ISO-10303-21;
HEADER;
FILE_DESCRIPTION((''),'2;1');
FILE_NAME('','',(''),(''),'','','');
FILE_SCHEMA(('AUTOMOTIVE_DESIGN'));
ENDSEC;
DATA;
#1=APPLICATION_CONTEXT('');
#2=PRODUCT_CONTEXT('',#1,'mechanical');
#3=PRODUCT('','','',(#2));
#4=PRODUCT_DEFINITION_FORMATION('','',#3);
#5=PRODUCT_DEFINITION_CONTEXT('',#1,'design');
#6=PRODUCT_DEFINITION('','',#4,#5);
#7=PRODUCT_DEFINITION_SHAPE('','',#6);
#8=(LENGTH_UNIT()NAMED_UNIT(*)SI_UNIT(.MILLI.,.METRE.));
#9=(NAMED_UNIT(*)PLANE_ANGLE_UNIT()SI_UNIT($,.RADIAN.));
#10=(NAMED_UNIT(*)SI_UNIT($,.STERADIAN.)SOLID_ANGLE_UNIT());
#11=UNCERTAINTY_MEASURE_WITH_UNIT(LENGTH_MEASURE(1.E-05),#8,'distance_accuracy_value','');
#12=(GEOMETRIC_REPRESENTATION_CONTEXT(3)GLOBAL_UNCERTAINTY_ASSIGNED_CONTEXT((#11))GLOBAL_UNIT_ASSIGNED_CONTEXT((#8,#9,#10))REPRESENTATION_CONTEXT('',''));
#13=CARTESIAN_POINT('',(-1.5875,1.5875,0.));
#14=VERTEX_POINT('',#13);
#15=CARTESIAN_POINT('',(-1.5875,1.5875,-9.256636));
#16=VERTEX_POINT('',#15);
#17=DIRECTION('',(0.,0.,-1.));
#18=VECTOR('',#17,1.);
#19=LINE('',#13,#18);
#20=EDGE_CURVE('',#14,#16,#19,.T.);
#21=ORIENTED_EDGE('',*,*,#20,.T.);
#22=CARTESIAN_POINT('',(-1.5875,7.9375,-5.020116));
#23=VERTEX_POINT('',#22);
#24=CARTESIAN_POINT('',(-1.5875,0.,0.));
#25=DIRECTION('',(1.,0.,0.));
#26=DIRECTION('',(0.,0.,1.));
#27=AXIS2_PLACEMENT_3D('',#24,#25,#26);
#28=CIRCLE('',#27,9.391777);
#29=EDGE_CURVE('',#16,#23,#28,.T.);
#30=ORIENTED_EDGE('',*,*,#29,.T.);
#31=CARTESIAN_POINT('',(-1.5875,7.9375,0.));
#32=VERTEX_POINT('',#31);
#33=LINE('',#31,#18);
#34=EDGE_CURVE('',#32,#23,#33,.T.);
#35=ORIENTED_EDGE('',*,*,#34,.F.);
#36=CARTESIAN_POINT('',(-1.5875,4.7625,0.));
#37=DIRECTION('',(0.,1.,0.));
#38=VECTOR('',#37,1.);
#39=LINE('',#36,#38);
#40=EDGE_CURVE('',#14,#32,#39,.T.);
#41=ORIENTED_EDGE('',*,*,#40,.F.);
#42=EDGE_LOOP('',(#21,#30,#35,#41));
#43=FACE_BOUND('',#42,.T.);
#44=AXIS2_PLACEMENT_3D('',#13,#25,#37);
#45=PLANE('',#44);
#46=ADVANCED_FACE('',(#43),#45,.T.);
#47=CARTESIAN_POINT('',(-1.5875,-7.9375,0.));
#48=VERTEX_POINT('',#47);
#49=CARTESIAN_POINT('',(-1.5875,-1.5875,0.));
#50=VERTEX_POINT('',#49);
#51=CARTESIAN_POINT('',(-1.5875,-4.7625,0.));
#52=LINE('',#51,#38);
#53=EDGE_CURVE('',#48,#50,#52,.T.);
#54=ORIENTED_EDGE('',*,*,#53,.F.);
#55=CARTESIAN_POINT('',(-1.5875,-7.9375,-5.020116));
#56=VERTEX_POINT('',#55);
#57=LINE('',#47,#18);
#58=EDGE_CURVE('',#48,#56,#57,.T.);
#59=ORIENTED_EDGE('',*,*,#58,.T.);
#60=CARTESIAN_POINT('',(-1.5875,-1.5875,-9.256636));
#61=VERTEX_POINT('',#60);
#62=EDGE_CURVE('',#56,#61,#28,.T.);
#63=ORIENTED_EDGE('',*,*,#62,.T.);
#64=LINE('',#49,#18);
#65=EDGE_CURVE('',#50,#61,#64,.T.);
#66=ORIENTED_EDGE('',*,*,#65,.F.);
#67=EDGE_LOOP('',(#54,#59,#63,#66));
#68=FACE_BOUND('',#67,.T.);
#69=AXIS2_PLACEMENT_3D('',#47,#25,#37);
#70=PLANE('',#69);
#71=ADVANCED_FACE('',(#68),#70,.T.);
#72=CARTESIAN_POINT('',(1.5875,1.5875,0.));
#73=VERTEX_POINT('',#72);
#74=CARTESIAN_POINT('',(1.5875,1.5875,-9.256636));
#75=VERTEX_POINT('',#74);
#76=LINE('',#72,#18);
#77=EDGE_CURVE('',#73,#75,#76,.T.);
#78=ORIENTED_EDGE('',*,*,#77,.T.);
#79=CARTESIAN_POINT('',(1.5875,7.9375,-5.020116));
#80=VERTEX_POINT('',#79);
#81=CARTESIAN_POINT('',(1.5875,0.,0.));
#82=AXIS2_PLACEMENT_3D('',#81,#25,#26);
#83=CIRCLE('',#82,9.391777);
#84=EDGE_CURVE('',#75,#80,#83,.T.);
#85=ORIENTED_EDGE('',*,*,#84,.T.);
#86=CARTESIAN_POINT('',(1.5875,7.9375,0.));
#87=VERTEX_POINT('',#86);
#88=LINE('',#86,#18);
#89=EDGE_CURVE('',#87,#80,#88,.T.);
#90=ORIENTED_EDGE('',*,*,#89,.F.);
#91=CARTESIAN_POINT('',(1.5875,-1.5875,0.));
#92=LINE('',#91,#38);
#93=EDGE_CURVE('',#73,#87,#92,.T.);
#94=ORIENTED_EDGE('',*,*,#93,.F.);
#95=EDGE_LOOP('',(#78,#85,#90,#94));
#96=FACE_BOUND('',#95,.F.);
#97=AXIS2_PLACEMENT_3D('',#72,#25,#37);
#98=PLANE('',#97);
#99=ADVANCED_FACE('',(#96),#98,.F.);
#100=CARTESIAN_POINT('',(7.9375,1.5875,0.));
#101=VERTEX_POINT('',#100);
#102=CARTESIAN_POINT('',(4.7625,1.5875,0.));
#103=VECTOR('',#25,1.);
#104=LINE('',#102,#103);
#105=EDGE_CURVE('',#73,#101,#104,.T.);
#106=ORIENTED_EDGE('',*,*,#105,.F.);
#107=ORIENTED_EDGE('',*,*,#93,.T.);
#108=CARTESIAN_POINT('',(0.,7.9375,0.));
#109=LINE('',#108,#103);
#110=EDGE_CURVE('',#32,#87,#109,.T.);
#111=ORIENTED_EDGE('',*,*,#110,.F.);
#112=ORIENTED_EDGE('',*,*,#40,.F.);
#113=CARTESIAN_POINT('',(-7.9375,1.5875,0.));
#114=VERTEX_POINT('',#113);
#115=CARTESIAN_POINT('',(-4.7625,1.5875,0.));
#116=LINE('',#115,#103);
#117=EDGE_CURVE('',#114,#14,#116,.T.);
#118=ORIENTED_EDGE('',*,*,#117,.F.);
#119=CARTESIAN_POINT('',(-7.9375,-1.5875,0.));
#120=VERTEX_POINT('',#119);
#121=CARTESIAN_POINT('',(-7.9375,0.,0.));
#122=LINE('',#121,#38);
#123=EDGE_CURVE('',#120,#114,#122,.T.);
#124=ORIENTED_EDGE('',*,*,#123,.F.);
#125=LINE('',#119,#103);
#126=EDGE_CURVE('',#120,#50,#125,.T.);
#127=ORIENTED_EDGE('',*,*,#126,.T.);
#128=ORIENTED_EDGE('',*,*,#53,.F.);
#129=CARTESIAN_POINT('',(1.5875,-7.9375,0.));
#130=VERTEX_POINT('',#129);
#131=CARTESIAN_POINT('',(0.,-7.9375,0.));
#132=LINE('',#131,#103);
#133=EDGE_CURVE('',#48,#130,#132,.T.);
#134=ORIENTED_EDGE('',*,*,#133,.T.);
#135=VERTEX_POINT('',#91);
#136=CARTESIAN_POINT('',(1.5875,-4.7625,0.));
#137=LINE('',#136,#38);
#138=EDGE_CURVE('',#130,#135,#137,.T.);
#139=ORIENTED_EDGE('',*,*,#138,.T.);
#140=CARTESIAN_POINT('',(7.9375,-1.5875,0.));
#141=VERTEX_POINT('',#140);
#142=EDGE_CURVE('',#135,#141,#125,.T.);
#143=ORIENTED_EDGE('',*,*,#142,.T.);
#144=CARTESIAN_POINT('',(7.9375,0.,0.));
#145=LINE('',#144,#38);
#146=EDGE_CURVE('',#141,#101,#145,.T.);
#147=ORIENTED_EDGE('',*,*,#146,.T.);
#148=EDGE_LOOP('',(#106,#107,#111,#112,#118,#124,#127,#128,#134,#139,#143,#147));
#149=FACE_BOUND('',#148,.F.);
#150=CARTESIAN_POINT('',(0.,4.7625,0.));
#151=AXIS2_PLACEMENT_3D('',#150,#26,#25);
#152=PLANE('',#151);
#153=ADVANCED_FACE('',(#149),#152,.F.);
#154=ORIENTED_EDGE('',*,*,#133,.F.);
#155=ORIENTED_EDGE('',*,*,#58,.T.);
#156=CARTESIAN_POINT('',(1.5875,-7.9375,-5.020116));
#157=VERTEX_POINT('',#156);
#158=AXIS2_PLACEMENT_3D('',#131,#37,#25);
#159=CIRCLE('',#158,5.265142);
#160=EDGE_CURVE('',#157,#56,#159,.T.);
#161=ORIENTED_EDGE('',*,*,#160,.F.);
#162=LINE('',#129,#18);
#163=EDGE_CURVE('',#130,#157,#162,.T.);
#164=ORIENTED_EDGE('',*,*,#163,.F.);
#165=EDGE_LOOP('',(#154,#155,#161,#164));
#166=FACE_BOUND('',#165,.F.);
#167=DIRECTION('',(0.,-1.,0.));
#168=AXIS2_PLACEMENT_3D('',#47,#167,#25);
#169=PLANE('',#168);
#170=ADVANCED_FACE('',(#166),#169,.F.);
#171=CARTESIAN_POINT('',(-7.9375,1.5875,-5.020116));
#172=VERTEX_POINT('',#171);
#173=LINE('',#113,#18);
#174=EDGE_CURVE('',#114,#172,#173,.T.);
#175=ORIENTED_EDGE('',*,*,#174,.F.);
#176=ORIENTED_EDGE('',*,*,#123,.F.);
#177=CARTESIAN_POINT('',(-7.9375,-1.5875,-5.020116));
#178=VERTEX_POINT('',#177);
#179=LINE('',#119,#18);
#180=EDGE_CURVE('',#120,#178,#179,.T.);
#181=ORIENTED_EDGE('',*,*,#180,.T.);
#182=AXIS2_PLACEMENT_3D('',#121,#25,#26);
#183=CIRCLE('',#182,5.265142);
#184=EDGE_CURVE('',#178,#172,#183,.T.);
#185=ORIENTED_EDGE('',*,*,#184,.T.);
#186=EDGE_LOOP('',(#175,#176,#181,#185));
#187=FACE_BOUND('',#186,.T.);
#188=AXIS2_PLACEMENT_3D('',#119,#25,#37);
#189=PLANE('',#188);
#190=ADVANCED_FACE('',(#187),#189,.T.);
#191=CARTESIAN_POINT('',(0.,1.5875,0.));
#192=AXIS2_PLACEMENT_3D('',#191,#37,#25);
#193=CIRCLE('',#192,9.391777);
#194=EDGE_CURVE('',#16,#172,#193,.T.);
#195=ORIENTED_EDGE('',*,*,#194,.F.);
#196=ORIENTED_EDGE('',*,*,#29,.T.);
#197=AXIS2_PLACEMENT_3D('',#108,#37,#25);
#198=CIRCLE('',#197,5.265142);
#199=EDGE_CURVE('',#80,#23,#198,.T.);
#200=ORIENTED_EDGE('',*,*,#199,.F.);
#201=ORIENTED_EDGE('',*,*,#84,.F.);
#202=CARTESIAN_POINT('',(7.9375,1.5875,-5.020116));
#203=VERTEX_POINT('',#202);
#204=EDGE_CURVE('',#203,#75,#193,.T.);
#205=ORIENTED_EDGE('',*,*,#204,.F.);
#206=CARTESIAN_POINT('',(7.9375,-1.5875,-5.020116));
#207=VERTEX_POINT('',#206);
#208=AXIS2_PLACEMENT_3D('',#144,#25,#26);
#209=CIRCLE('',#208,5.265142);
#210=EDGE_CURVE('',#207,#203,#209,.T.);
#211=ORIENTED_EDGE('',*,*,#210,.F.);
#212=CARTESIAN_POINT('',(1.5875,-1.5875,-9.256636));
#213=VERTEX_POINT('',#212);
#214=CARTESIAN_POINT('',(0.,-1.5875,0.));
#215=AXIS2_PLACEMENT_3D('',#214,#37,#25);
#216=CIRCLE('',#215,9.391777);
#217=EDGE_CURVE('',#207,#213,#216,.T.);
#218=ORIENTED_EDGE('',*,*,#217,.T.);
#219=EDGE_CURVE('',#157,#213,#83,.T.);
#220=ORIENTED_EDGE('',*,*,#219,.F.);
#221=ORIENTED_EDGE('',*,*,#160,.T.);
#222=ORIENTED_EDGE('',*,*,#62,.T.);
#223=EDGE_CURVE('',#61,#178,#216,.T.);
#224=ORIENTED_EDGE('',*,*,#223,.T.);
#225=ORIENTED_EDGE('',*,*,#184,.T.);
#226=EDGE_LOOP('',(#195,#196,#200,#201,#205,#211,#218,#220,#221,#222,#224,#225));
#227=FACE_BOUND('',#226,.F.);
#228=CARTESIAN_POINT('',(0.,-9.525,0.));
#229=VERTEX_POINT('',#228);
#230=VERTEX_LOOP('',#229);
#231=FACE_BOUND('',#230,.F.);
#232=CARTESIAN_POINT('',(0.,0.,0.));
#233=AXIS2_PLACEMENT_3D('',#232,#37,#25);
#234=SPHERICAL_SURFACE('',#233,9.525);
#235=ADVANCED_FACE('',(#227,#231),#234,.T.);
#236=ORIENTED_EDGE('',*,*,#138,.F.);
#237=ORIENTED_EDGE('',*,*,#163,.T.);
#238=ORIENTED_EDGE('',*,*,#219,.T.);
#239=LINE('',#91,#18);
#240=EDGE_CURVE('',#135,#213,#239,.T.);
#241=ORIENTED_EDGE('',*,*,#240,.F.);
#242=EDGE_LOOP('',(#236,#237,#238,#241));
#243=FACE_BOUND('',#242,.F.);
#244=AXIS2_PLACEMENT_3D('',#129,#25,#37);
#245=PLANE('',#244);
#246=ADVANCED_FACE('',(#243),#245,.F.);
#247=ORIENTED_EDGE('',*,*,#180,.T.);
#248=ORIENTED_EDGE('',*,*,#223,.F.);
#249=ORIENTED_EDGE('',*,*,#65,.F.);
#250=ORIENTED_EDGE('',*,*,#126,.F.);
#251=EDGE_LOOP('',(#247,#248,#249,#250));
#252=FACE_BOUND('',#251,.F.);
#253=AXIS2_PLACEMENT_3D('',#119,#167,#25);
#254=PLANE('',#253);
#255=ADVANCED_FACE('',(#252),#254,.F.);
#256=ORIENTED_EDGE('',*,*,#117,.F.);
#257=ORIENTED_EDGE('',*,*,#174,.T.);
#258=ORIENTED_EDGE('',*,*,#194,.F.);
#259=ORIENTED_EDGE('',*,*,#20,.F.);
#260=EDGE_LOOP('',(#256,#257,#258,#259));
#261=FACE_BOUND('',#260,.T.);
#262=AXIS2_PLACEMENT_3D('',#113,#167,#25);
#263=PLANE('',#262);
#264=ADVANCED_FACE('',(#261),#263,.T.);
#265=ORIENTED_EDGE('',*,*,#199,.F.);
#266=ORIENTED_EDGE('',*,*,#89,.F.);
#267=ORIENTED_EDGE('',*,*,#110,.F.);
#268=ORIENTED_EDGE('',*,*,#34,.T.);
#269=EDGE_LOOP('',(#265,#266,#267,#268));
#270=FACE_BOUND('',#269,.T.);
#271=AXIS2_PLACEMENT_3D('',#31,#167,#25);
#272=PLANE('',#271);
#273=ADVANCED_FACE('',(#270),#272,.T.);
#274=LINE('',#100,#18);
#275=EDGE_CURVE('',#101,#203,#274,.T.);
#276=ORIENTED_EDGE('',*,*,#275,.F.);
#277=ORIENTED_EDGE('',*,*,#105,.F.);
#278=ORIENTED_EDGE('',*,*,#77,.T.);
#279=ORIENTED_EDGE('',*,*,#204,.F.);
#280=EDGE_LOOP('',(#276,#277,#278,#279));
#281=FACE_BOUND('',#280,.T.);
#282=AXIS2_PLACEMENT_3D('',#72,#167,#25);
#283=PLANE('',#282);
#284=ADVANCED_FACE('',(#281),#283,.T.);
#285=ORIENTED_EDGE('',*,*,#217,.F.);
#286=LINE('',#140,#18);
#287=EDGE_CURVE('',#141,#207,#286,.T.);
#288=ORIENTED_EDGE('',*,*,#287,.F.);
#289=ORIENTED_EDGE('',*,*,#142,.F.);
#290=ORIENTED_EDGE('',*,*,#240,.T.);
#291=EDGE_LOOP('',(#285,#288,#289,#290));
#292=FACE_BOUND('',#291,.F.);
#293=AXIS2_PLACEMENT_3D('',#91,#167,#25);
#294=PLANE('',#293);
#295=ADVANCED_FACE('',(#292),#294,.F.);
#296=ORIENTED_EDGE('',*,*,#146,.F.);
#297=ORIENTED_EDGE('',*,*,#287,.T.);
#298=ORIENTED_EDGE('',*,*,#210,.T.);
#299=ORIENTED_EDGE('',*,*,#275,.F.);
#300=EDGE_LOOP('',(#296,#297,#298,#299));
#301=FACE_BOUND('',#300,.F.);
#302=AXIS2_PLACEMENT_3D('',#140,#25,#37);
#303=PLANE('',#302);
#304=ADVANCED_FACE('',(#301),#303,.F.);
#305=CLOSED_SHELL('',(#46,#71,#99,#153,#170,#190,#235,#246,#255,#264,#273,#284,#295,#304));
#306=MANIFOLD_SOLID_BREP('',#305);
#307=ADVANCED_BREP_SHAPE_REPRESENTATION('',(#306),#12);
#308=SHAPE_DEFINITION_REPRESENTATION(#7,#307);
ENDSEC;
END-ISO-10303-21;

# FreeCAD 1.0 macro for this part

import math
import FreeCAD as App
import Part
import Sketcher
Q = App.Units.Quantity

doc = App.newDocument("Part")
body = doc.addObject("PartDesign::Body", "Body")

# Sketch on XY plane
sketch1 = doc.addObject("Sketcher::SketchObject", "Sketch")
body.addObject(sketch1)
sketch1.AttachmentSupport = (doc.XY_Plane, [""])
sketch1.MapMode = "FlatFace"
sketch1.addGeometry([
    Part.ArcOfCircle(Part.Circle(App.Vector(0, 0, 0), App.Vector(0, 0, 1), 9.525), math.radians(-90), math.radians(90)),
    Part.LineSegment(App.Vector(0, 9.525, 0), App.Vector(0, -9.525, 0)),
], False)
sketch1.addConstraint([
    Sketcher.Constraint("Coincident", 0, 1, 1, 2),
    Sketcher.Constraint("Coincident", 1, 1, 0, 2),
    Sketcher.Constraint("Vertical", 1),
    Sketcher.Constraint("Coincident", 0, 3, -1, 1),
    Sketcher.Constraint("PointOnObject", 0, 1, -2),
    Sketcher.Constraint("Radius", 0, Q("0.375 in")),
])
revolution = doc.addObject("PartDesign::Revolution", "Revolution")
body.addObject(revolution)
revolution.Profile = sketch1
revolution.ReferenceAxis = (sketch1, ["V_Axis"])
revolution.Angle = 360

# Sketch on XY plane
sketch2 = doc.addObject("Sketcher::SketchObject", "Sketch001")
body.addObject(sketch2)
sketch2.AttachmentSupport = (doc.XY_Plane, [""])
sketch2.MapMode = "FlatFace"
sketch2.addGeometry([
    Part.LineSegment(App.Vector(-1.5875, 7.9375, 0), App.Vector(-1.5875, 1.5875, 0)),  # 0
    Part.LineSegment(App.Vector(-1.5875, 1.5875, 0), App.Vector(-7.9375, 1.5875, 0)),  # 1
    Part.LineSegment(App.Vector(-7.9375, 1.5875, 0), App.Vector(-7.9375, -1.5875, 0)),  # 2
    Part.LineSegment(App.Vector(-7.9375, -1.5875, 0), App.Vector(-1.5875, -1.5875, 0)),  # 3
    Part.LineSegment(App.Vector(-1.5875, -1.5875, 0), App.Vector(-1.5875, -7.9375, 0)),  # 4
    Part.LineSegment(App.Vector(-1.5875, -7.9375, 0), App.Vector(1.5875, -7.9375, 0)),  # 5
    Part.LineSegment(App.Vector(1.5875, -7.9375, 0), App.Vector(1.5875, -1.5875, 0)),  # 6
    Part.LineSegment(App.Vector(1.5875, -1.5875, 0), App.Vector(7.9375, -1.5875, 0)),  # 7
    Part.LineSegment(App.Vector(7.9375, -1.5875, 0), App.Vector(7.9375, 1.5875, 0)),  # 8
    Part.LineSegment(App.Vector(7.9375, 1.5875, 0), App.Vector(1.5875, 1.5875, 0)),  # 9
    Part.LineSegment(App.Vector(1.5875, 1.5875, 0), App.Vector(1.5875, 7.9375, 0)),  # 10
    Part.LineSegment(App.Vector(1.5875, 7.9375, 0), App.Vector(-1.5875, 7.9375, 0)),  # 11
], False)
sketch2.addConstraint([
    Sketcher.Constraint("Coincident", 0, 2, 1, 1),
    Sketcher.Constraint("Coincident", 1, 2, 2, 1),
    Sketcher.Constraint("Coincident", 2, 2, 3, 1),
    Sketcher.Constraint("Coincident", 3, 2, 4, 1),
    Sketcher.Constraint("Coincident", 4, 2, 5, 1),
    Sketcher.Constraint("Coincident", 5, 2, 6, 1),
    Sketcher.Constraint("Coincident", 6, 2, 7, 1),
    Sketcher.Constraint("Coincident", 7, 2, 8, 1),
    Sketcher.Constraint("Coincident", 8, 2, 9, 1),
    Sketcher.Constraint("Coincident", 9, 2, 10, 1),
    Sketcher.Constraint("Coincident", 10, 2, 11, 1),
    Sketcher.Constraint("Coincident", 11, 2, 0, 1),
    Sketcher.Constraint("Vertical", 0),
    Sketcher.Constraint("Horizontal", 1),
    Sketcher.Constraint("Vertical", 2),
    Sketcher.Constraint("Horizontal", 3),
    Sketcher.Constraint("Vertical", 4),
    Sketcher.Constraint("Horizontal", 5),
    Sketcher.Constraint("Vertical", 6),
    Sketcher.Constraint("Horizontal", 7),
    Sketcher.Constraint("Vertical", 8),
    Sketcher.Constraint("Horizontal", 9),
    Sketcher.Constraint("Vertical", 10),
    Sketcher.Constraint("Horizontal", 11),
    Sketcher.Constraint("Symmetric", 0, 2, 6, 2, -1, 1),
    Sketcher.Constraint("Symmetric", 2, 2, 8, 2, -1, 1),
    Sketcher.Constraint("Symmetric", 4, 2, 10, 2, -1, 1),
    Sketcher.Constraint("Symmetric", 3, 2, 6, 2, -2),
    Sketcher.Constraint("Equal", 9, 0),
    Sketcher.Constraint("Equal", 11, 2),
    Sketcher.Constraint("DistanceX", 1, 2, 1, 1, Q("0.25 in")),
    Sketcher.Constraint("DistanceX", 5, 1, 5, 2, Q("0.125 in")),
])
pocket1 = doc.addObject("PartDesign::Pocket", "Pocket")
body.addObject(pocket1)
pocket1.Profile = sketch2
pocket1.Length = Q("0.5 in")

doc.recompute()
